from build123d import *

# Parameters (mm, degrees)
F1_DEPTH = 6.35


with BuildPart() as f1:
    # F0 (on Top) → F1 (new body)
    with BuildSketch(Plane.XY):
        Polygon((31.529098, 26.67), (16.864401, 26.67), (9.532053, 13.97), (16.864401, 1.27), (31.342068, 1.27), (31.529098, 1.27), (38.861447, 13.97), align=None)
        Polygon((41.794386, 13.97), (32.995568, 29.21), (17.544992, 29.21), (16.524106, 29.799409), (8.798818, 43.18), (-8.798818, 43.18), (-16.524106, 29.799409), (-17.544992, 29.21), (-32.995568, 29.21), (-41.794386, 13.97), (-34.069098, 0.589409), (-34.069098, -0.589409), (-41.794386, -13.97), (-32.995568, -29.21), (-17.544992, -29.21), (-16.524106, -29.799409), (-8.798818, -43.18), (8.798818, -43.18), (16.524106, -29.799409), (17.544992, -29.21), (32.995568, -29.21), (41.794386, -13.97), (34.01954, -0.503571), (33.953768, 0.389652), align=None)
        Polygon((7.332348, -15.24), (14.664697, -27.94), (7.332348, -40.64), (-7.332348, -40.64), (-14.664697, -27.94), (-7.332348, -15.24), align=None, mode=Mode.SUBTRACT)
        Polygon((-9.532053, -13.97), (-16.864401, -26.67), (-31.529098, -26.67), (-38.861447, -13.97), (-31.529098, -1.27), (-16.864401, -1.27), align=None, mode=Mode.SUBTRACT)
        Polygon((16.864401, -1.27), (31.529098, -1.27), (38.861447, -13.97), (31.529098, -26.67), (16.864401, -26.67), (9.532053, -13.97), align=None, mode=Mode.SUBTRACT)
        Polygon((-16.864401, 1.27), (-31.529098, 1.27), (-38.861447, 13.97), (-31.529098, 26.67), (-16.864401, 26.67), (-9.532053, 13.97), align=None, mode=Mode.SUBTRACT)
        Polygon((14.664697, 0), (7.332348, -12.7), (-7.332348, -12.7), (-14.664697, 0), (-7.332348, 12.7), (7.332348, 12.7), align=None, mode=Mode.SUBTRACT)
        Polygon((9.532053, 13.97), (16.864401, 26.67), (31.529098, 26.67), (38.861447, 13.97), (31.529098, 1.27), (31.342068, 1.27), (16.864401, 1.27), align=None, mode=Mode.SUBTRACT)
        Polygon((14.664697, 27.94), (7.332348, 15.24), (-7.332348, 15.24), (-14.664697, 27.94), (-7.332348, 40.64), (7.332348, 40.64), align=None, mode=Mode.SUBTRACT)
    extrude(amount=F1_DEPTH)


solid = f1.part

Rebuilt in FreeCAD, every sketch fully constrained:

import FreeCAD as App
import Part
import Sketcher
Q = App.Units.Quantity

doc = App.newDocument("Part")
body = doc.addObject("PartDesign::Body", "Body")

# Sketch on XY plane
sketch1 = body.newObject("Sketcher::SketchObject", "Sketch")
sketch1.AttachmentSupport = (doc.getObject("XY_Plane"), [""])
sketch1.MapMode = "FlatFace"
sketch1.addGeometry(Part.LineSegment(App.Vector(41.8, 14, 0), App.Vector(33, 29.2, 0)), False)
sketch1.addGeometry(Part.LineSegment(App.Vector(33, 29.2, 0), App.Vector(17.5, 29.2, 0)), False)
sketch1.addGeometry(Part.LineSegment(App.Vector(17.5, 29.2, 0), App.Vector(16.5, 29.8, 0)), False)
sketch1.addGeometry(Part.LineSegment(App.Vector(16.5, 29.8, 0), App.Vector(8.8, 43.2, 0)), False)
sketch1.addGeometry(Part.LineSegment(App.Vector(8.8, 43.2, 0), App.Vector(-8.8, 43.2, 0)), False)
sketch1.addGeometry(Part.LineSegment(App.Vector(-8.8, 43.2, 0), App.Vector(-16.5, 29.8, 0)), False)
sketch1.addGeometry(Part.LineSegment(App.Vector(-16.5, 29.8, 0), App.Vector(-17.5, 29.2, 0)), False)
sketch1.addGeometry(Part.LineSegment(App.Vector(-17.5, 29.2, 0), App.Vector(-33, 29.2, 0)), False)
sketch1.addGeometry(Part.LineSegment(App.Vector(-33, 29.2, 0), App.Vector(-41.8, 14, 0)), False)
sketch1.addGeometry(Part.LineSegment(App.Vector(-41.8, 14, 0), App.Vector(-34.1, 0.6, 0)), False)
sketch1.addGeometry(Part.LineSegment(App.Vector(-34.1, 0.6, 0), App.Vector(-34.1, -0.6, 0)), False)
sketch1.addGeometry(Part.LineSegment(App.Vector(-34.1, -0.6, 0), App.Vector(-41.8, -14, 0)), False)
sketch1.addGeometry(Part.LineSegment(App.Vector(-41.8, -14, 0), App.Vector(-33, -29.2, 0)), False)
sketch1.addGeometry(Part.LineSegment(App.Vector(-33, -29.2, 0), App.Vector(-17.5, -29.2, 0)), False)
sketch1.addGeometry(Part.LineSegment(App.Vector(-17.5, -29.2, 0), App.Vector(-16.5, -29.8, 0)), False)
sketch1.addGeometry(Part.LineSegment(App.Vector(-16.5, -29.8, 0), App.Vector(-8.8, -43.2, 0)), False)
sketch1.addGeometry(Part.LineSegment(App.Vector(-8.8, -43.2, 0), App.Vector(8.8, -43.2, 0)), False)
sketch1.addGeometry(Part.LineSegment(App.Vector(8.8, -43.2, 0), App.Vector(16.5, -29.8, 0)), False)
sketch1.addGeometry(Part.LineSegment(App.Vector(16.5, -29.8, 0), App.Vector(17.5, -29.2, 0)), False)
sketch1.addGeometry(Part.LineSegment(App.Vector(17.5, -29.2, 0), App.Vector(33, -29.2, 0)), False)
sketch1.addGeometry(Part.LineSegment(App.Vector(33, -29.2, 0), App.Vector(41.8, -14, 0)), False)
sketch1.addGeometry(Part.LineSegment(App.Vector(41.8, -14, 0), App.Vector(34, -0.5, 0)), False)
sketch1.addGeometry(Part.LineSegment(App.Vector(34, -0.5, 0), App.Vector(34, 0.4, 0)), False)
sketch1.addGeometry(Part.LineSegment(App.Vector(34, 0.4, 0), App.Vector(41.8, 14, 0)), False)
sketch1.addGeometry(Part.LineSegment(App.Vector(-7.3, -15.2, 0), App.Vector(7.3, -15.2, 0)), False)
sketch1.addGeometry(Part.LineSegment(App.Vector(7.3, -15.2, 0), App.Vector(14.7, -27.9, 0)), False)
sketch1.addGeometry(Part.LineSegment(App.Vector(14.7, -27.9, 0), App.Vector(7.3, -40.6, 0)), False)
sketch1.addGeometry(Part.LineSegment(App.Vector(7.3, -40.6, 0), App.Vector(-7.3, -40.6, 0)), False)
sketch1.addGeometry(Part.LineSegment(App.Vector(-7.3, -40.6, 0), App.Vector(-14.7, -27.9, 0)), False)
sketch1.addGeometry(Part.LineSegment(App.Vector(-14.7, -27.9, 0), App.Vector(-7.3, -15.2, 0)), False)
sketch1.addGeometry(Part.LineSegment(App.Vector(-16.9, -1.3, 0), App.Vector(-9.5, -14, 0)), False)
sketch1.addGeometry(Part.LineSegment(App.Vector(-9.5, -14, 0), App.Vector(-16.9, -26.7, 0)), False)
sketch1.addGeometry(Part.LineSegment(App.Vector(-16.9, -26.7, 0), App.Vector(-31.5, -26.7, 0)), False)
sketch1.addGeometry(Part.LineSegment(App.Vector(-31.5, -26.7, 0), App.Vector(-38.9, -14, 0)), False)
sketch1.addGeometry(Part.LineSegment(App.Vector(-38.9, -14, 0), App.Vector(-31.5, -1.3, 0)), False)
sketch1.addGeometry(Part.LineSegment(App.Vector(-31.5, -1.3, 0), App.Vector(-16.9, -1.3, 0)), False)
sketch1.addGeometry(Part.LineSegment(App.Vector(7.3, 12.7, 0), App.Vector(14.7, 0, 0)), False)
sketch1.addGeometry(Part.LineSegment(App.Vector(14.7, 0, 0), App.Vector(7.3, -12.7, 0)), False)
sketch1.addGeometry(Part.LineSegment(App.Vector(7.3, -12.7, 0), App.Vector(-7.3, -12.7, 0)), False)
sketch1.addGeometry(Part.LineSegment(App.Vector(-7.3, -12.7, 0), App.Vector(-14.7, 0, 0)), False)
sketch1.addGeometry(Part.LineSegment(App.Vector(-14.7, 0, 0), App.Vector(-7.3, 12.7, 0)), False)
sketch1.addGeometry(Part.LineSegment(App.Vector(-7.3, 12.7, 0), App.Vector(7.3, 12.7, 0)), False)
sketch1.addGeometry(Part.LineSegment(App.Vector(9.5, -14, 0), App.Vector(16.9, -1.3, 0)), False)
sketch1.addGeometry(Part.LineSegment(App.Vector(16.9, -1.3, 0), App.Vector(31.5, -1.3, 0)), False)
sketch1.addGeometry(Part.LineSegment(App.Vector(31.5, -1.3, 0), App.Vector(38.9, -14, 0)), False)
sketch1.addGeometry(Part.LineSegment(App.Vector(38.9, -14, 0), App.Vector(31.5, -26.7, 0)), False)
sketch1.addGeometry(Part.LineSegment(App.Vector(31.5, -26.7, 0), App.Vector(16.9, -26.7, 0)), False)
sketch1.addGeometry(Part.LineSegment(App.Vector(16.9, -26.7, 0), App.Vector(9.5, -14, 0)), False)
sketch1.addGeometry(Part.LineSegment(App.Vector(-9.5, 14, 0), App.Vector(-16.9, 1.3, 0)), False)
sketch1.addGeometry(Part.LineSegment(App.Vector(-16.9, 1.3, 0), App.Vector(-31.5, 1.3, 0)), False)
sketch1.addGeometry(Part.LineSegment(App.Vector(-31.5, 1.3, 0), App.Vector(-38.9, 14, 0)), False)
sketch1.addGeometry(Part.LineSegment(App.Vector(-38.9, 14, 0), App.Vector(-31.5, 26.7, 0)), False)
sketch1.addGeometry(Part.LineSegment(App.Vector(-31.5, 26.7, 0), App.Vector(-16.9, 26.7, 0)), False)
sketch1.addGeometry(Part.LineSegment(App.Vector(-16.9, 26.7, 0), App.Vector(-9.5, 14, 0)), False)
sketch1.addGeometry(Part.LineSegment(App.Vector(7.3, 40.6, 0), App.Vector(14.7, 27.9, 0)), False)
sketch1.addGeometry(Part.LineSegment(App.Vector(14.7, 27.9, 0), App.Vector(7.3, 15.2, 0)), False)
sketch1.addGeometry(Part.LineSegment(App.Vector(7.3, 15.2, 0), App.Vector(-7.3, 15.2, 0)), False)
sketch1.addGeometry(Part.LineSegment(App.Vector(-7.3, 15.2, 0), App.Vector(-14.7, 27.9, 0)), False)
sketch1.addGeometry(Part.LineSegment(App.Vector(-14.7, 27.9, 0), App.Vector(-7.3, 40.6, 0)), False)
sketch1.addGeometry(Part.LineSegment(App.Vector(-7.3, 40.6, 0), App.Vector(7.3, 40.6, 0)), False)
sketch1.addGeometry(Part.LineSegment(App.Vector(16.9, 1.3, 0), App.Vector(9.5, 14, 0)), False)
sketch1.addGeometry(Part.LineSegment(App.Vector(9.5, 14, 0), App.Vector(16.9, 26.7, 0)), False)
sketch1.addGeometry(Part.LineSegment(App.Vector(16.9, 26.7, 0), App.Vector(31.5, 26.7, 0)), False)
sketch1.addGeometry(Part.LineSegment(App.Vector(31.5, 26.7, 0), App.Vector(38.9, 14, 0)), False)
sketch1.addGeometry(Part.LineSegment(App.Vector(38.9, 14, 0), App.Vector(31.5, 1.3, 0)), False)
sketch1.addGeometry(Part.LineSegment(App.Vector(31.5, 1.3, 0), App.Vector(16.9, 1.3, 0)), False)
sketch1.addConstraint(Sketcher.Constraint("Coincident", 0, 2, 1, 1))
sketch1.addConstraint(Sketcher.Constraint("Coincident", 1, 2, 2, 1))
sketch1.addConstraint(Sketcher.Constraint("Coincident", 2, 2, 3, 1))
sketch1.addConstraint(Sketcher.Constraint("Coincident", 3, 2, 4, 1))
sketch1.addConstraint(Sketcher.Constraint("Coincident", 4, 2, 5, 1))
sketch1.addConstraint(Sketcher.Constraint("Coincident", 5, 2, 6, 1))
sketch1.addConstraint(Sketcher.Constraint("Coincident", 6, 2, 7, 1))
sketch1.addConstraint(Sketcher.Constraint("Coincident", 7, 2, 8, 1))
sketch1.addConstraint(Sketcher.Constraint("Coincident", 8, 2, 9, 1))
sketch1.addConstraint(Sketcher.Constraint("Coincident", 9, 2, 10, 1))
sketch1.addConstraint(Sketcher.Constraint("Coincident", 10, 2, 11, 1))
sketch1.addConstraint(Sketcher.Constraint("Coincident", 11, 2, 12, 1))
sketch1.addConstraint(Sketcher.Constraint("Coincident", 12, 2, 13, 1))
sketch1.addConstraint(Sketcher.Constraint("Coincident", 13, 2, 14, 1))
sketch1.addConstraint(Sketcher.Constraint("Coincident", 14, 2, 15, 1))
sketch1.addConstraint(Sketcher.Constraint("Coincident", 15, 2, 16, 1))
sketch1.addConstraint(Sketcher.Constraint("Coincident", 16, 2, 17, 1))
sketch1.addConstraint(Sketcher.Constraint("Coincident", 17, 2, 18, 1))
sketch1.addConstraint(Sketcher.Constraint("Coincident", 18, 2, 19, 1))
sketch1.addConstraint(Sketcher.Constraint("Coincident", 19, 2, 20, 1))
sketch1.addConstraint(Sketcher.Constraint("Coincident", 20, 2, 21, 1))
sketch1.addConstraint(Sketcher.Constraint("Coincident", 21, 2, 22, 1))
sketch1.addConstraint(Sketcher.Constraint("Coincident", 22, 2, 23, 1))
sketch1.addConstraint(Sketcher.Constraint("Coincident", 23, 2, 0, 1))
sketch1.addConstraint(Sketcher.Constraint("Coincident", 24, 2, 25, 1))
sketch1.addConstraint(Sketcher.Constraint("Coincident", 25, 2, 26, 1))
sketch1.addConstraint(Sketcher.Constraint("Coincident", 26, 2, 27, 1))
sketch1.addConstraint(Sketcher.Constraint("Coincident", 27, 2, 28, 1))
sketch1.addConstraint(Sketcher.Constraint("Coincident", 28, 2, 29, 1))
sketch1.addConstraint(Sketcher.Constraint("Coincident", 29, 2, 24, 1))
sketch1.addConstraint(Sketcher.Constraint("Coincident", 30, 2, 31, 1))
sketch1.addConstraint(Sketcher.Constraint("Coincident", 31, 2, 32, 1))
sketch1.addConstraint(Sketcher.Constraint("Coincident", 32, 2, 33, 1))
sketch1.addConstraint(Sketcher.Constraint("Coincident", 33, 2, 34, 1))
sketch1.addConstraint(Sketcher.Constraint("Coincident", 34, 2, 35, 1))
sketch1.addConstraint(Sketcher.Constraint("Coincident", 35, 2, 30, 1))
sketch1.addConstraint(Sketcher.Constraint("Coincident", 36, 2, 37, 1))
sketch1.addConstraint(Sketcher.Constraint("Coincident", 37, 2, 38, 1))
sketch1.addConstraint(Sketcher.Constraint("Coincident", 38, 2, 39, 1))
sketch1.addConstraint(Sketcher.Constraint("Coincident", 39, 2, 40, 1))
sketch1.addConstraint(Sketcher.Constraint("Coincident", 40, 2, 41, 1))
sketch1.addConstraint(Sketcher.Constraint("Coincident", 41, 2, 36, 1))
sketch1.addConstraint(Sketcher.Constraint("Coincident", 42, 2, 43, 1))
sketch1.addConstraint(Sketcher.Constraint("Coincident", 43, 2, 44, 1))
sketch1.addConstraint(Sketcher.Constraint("Coincident", 44, 2, 45, 1))
sketch1.addConstraint(Sketcher.Constraint("Coincident", 45, 2, 46, 1))
sketch1.addConstraint(Sketcher.Constraint("Coincident", 46, 2, 47, 1))
sketch1.addConstraint(Sketcher.Constraint("Coincident", 47, 2, 42, 1))
sketch1.addConstraint(Sketcher.Constraint("Coincident", 48, 2, 49, 1))
sketch1.addConstraint(Sketcher.Constraint("Coincident", 49, 2, 50, 1))
sketch1.addConstraint(Sketcher.Constraint("Coincident", 50, 2, 51, 1))
sketch1.addConstraint(Sketcher.Constraint("Coincident", 51, 2, 52, 1))
sketch1.addConstraint(Sketcher.Constraint("Coincident", 52, 2, 53, 1))
sketch1.addConstraint(Sketcher.Constraint("Coincident", 53, 2, 48, 1))
sketch1.addConstraint(Sketcher.Constraint("Coincident", 54, 2, 55, 1))
sketch1.addConstraint(Sketcher.Constraint("Coincident", 55, 2, 56, 1))
sketch1.addConstraint(Sketcher.Constraint("Coincident", 56, 2, 57, 1))
sketch1.addConstraint(Sketcher.Constraint("Coincident", 57, 2, 58, 1))
sketch1.addConstraint(Sketcher.Constraint("Coincident", 58, 2, 59, 1))
sketch1.addConstraint(Sketcher.Constraint("Coincident", 59, 2, 54, 1))
sketch1.addConstraint(Sketcher.Constraint("Coincident", 60, 2, 61, 1))
sketch1.addConstraint(Sketcher.Constraint("Coincident", 61, 2, 62, 1))
sketch1.addConstraint(Sketcher.Constraint("Coincident", 62, 2, 63, 1))
sketch1.addConstraint(Sketcher.Constraint("Coincident", 63, 2, 64, 1))
sketch1.addConstraint(Sketcher.Constraint("Coincident", 64, 2, 65, 1))
sketch1.addConstraint(Sketcher.Constraint("Coincident", 65, 2, 60, 1))
sketch1.addConstraint(Sketcher.Constraint("Horizontal", 1))
sketch1.addConstraint(Sketcher.Constraint("Horizontal", 4))
sketch1.addConstraint(Sketcher.Constraint("Horizontal", 7))
sketch1.addConstraint(Sketcher.Constraint("Vertical", 10))
sketch1.addConstraint(Sketcher.Constraint("Horizontal", 13))
sketch1.addConstraint(Sketcher.Constraint("Horizontal", 16))
sketch1.addConstraint(Sketcher.Constraint("Horizontal", 19))
sketch1.addConstraint(Sketcher.Constraint("Horizontal", 24))
sketch1.addConstraint(Sketcher.Constraint("Horizontal", 27))
sketch1.addConstraint(Sketcher.Constraint("Horizontal", 32))
sketch1.addConstraint(Sketcher.Constraint("Horizontal", 35))
sketch1.addConstraint(Sketcher.Constraint("Horizontal", 38))
sketch1.addConstraint(Sketcher.Constraint("Horizontal", 41))
sketch1.addConstraint(Sketcher.Constraint("Horizontal", 43))
sketch1.addConstraint(Sketcher.Constraint("Horizontal", 46))
sketch1.addConstraint(Sketcher.Constraint("Horizontal", 49))
sketch1.addConstraint(Sketcher.Constraint("Horizontal", 52))
sketch1.addConstraint(Sketcher.Constraint("Horizontal", 56))
sketch1.addConstraint(Sketcher.Constraint("Horizontal", 59))
sketch1.addConstraint(Sketcher.Constraint("Horizontal", 62))
sketch1.addConstraint(Sketcher.Constraint("Horizontal", 65))
sketch1.addConstraint(Sketcher.Constraint("Symmetric", 0, 2, 12, 2, -1, 1))
sketch1.addConstraint(Sketcher.Constraint("Symmetric", 2, 2, 14, 2, -1, 1))
sketch1.addConstraint(Sketcher.Constraint("Symmetric", 3, 2, 15, 2, -1, 1))
sketch1.addConstraint(Sketcher.Constraint("Symmetric", 5, 2, 17, 2, -1, 1))
sketch1.addConstraint(Sketcher.Constraint("Symmetric", 6, 2, 18, 2, -1, 1))
sketch1.addConstraint(Sketcher.Constraint("Symmetric", 8, 2, 20, 2, -1, 1))
sketch1.addConstraint(Sketcher.Constraint("Symmetric", 11, 2, 23, 2, -1, 1))
sketch1.addConstraint(Sketcher.Constraint("Symmetric", 36, 2, 39, 2, -1, 1))
sketch1.addConstraint(Sketcher.Constraint("Symmetric", 37, 2, 40, 2, -1, 1))
sketch1.addConstraint(Sketcher.Constraint("Symmetric", 42, 2, 48, 2, -1, 1))
sketch1.addConstraint(Sketcher.Constraint("Symmetric", 44, 2, 50, 2, -1, 1))
sketch1.addConstraint(Sketcher.Constraint("Symmetric", 45, 2, 51, 2, -1, 1))
sketch1.addConstraint(Sketcher.Constraint("Symmetric", 47, 2, 53, 2, -1, 1))
sketch1.addConstraint(Sketcher.Constraint("Symmetric", 28, 2, 54, 2, -1, 1))
sketch1.addConstraint(Sketcher.Constraint("Symmetric", 29, 2, 55, 2, -1, 1))
sketch1.addConstraint(Sketcher.Constraint("Symmetric", 25, 2, 57, 2, -1, 1))
sketch1.addConstraint(Sketcher.Constraint("Symmetric", 26, 2, 58, 2, -1, 1))
sketch1.addConstraint(Sketcher.Constraint("Symmetric", 30, 2, 60, 2, -1, 1))
sketch1.addConstraint(Sketcher.Constraint("Symmetric", 31, 2, 61, 2, -1, 1))
sketch1.addConstraint(Sketcher.Constraint("Symmetric", 33, 2, 63, 2, -1, 1))
sketch1.addConstraint(Sketcher.Constraint("Symmetric", 34, 2, 64, 2, -1, 1))
sketch1.addConstraint(Sketcher.Constraint("Symmetric", 2, 2, 5, 2, -2))
sketch1.addConstraint(Sketcher.Constraint("Symmetric", 1, 2, 6, 2, -2))
sketch1.addConstraint(Sketcher.Constraint("Symmetric", 11, 2, 20, 2, -2))
sketch1.addConstraint(Sketcher.Constraint("Symmetric", 25, 2, 28, 2, -2))
sketch1.addConstraint(Sketcher.Constraint("Symmetric", 35, 2, 42, 2, -2))
sketch1.addConstraint(Sketcher.Constraint("Symmetric", 33, 2, 44, 2, -2))
sketch1.addConstraint(Sketcher.Constraint("Symmetric", 32, 2, 45, 2, -2))
sketch1.addConstraint(Sketcher.Constraint("Symmetric", 30, 2, 47, 2, -2))
sketch1.addConstraint(Sketcher.Constraint("PointOnObject", 36, 2, -1))
sketch1.addConstraint(Sketcher.Constraint("Parallel", 0, 3))
sketch1.addConstraint(Sketcher.Constraint("Perpendicular", 2, 5))
sketch1.addConstraint(Sketcher.Constraint("Perpendicular", 3, 6))
sketch1.addConstraint(Sketcher.Constraint("Parallel", 5, 8))
sketch1.addConstraint(Sketcher.Constraint("Perpendicular", 6, 9))
sketch1.addConstraint(Sketcher.Constraint("Parallel", 8, 11))
sketch1.addConstraint(Sketcher.Constraint("Perpendicular", 11, 14))
sketch1.addConstraint(Sketcher.Constraint("Perpendicular", 14, 17))
sketch1.addConstraint(Sketcher.Constraint("Parallel", 17, 20))
sketch1.addConstraint(Sketcher.Constraint("Perpendicular", 18, 21))
sketch1.addConstraint(Sketcher.Constraint("Parallel", 20, 23))
sketch1.addConstraint(Sketcher.Constraint("Parallel", 21, 25))
sketch1.addConstraint(Sketcher.Constraint("Parallel", 23, 26))
sketch1.addConstraint(Sketcher.Constraint("Parallel", 25, 28))
sketch1.addConstraint(Sketcher.Constraint("Parallel", 26, 29))
sketch1.addConstraint(Sketcher.Constraint("Parallel", 28, 30))
sketch1.addConstraint(Sketcher.Constraint("Parallel", 29, 31))
sketch1.addConstraint(Sketcher.Constraint("Parallel", 30, 33))
sketch1.addConstraint(Sketcher.Constraint("Parallel", 31, 34))
sketch1.addConstraint(Sketcher.Constraint("Parallel", 33, 36))
sketch1.addConstraint(Sketcher.Constraint("Parallel", 34, 37))
sketch1.addConstraint(Sketcher.Constraint("Parallel", 36, 39))
sketch1.addConstraint(Sketcher.Constraint("Parallel", 39, 44))
sketch1.addConstraint(Sketcher.Constraint("Parallel", 44, 47))
sketch1.addConstraint(Sketcher.Constraint("Parallel", 47, 50))
sketch1.addConstraint(Sketcher.Constraint("Parallel", 50, 53))
sketch1.addConstraint(Sketcher.Constraint("Parallel", 53, 54))
sketch1.addConstraint(Sketcher.Constraint("Parallel", 54, 57))
sketch1.addConstraint(Sketcher.Constraint("Parallel", 57, 60))
sketch1.addConstraint(Sketcher.Constraint("Parallel", 60, 63))
sketch1.addConstraint(Sketcher.Constraint("Horizontal", 20, 2, 30, 2))
sketch1.addConstraint(Sketcher.Constraint("Horizontal", 30, 2, 33, 2))
sketch1.addConstraint(Sketcher.Constraint("Vertical", 24, 2, 26, 2))
sketch1.addConstraint(Sketcher.Constraint("Vertical", 32, 2, 34, 2))
sketch1.addConstraint(Sketcher.Constraint("Vertical", 25, 2, 36, 2))
sketch1.addConstraint(Sketcher.Constraint("Vertical", 26, 2, 37, 2))
sketch1.addConstraint(Sketcher.Constraint("Equal", 27, 32))
sketch1.addConstraint(Sketcher.Constraint("Equal", 5, 9))
sketch1.addConstraint(Sketcher.Constraint("Equal", 29, 30))
sketch1.addConstraint(Sketcher.Constraint("Angle", 0, Q("120 deg")))
sketch1.addConstraint(Sketcher.Constraint("DistanceY", -1, 1, 3, 2, Q("1.7 in")))
sketch1.addConstraint(Sketcher.Constraint("DistanceY", 24, 2, -1, 1, Q("0.6 in")))
sketch1.addConstraint(Sketcher.Constraint("DistanceY", 25, 2, -1, 1, Q("1.1 in")))
sketch1.addConstraint(Sketcher.Constraint("DistanceY", -1, 1, 0, 2, Q("1.15 in")))
sketch1.addConstraint(Sketcher.Constraint("DistanceY", -1, 1, 8, 2, Q("0.55 in")))
sketch1.addConstraint(Sketcher.Constraint("DistanceX", 31, 2, -1, 1, Q("16.864401 mm")))
sketch1.addConstraint(Sketcher.Constraint("DistanceX", 32, 2, -1, 1, Q("31.529098 mm")))
sketch1.addConstraint(Sketcher.Constraint("Distance", 22, Q("0.895641 mm")))
sketch1.addConstraint(Sketcher.Constraint("DistanceX", 1, 2, 1, 1, Q("15.450576 mm")))
sketch1.addConstraint(Sketcher.Constraint("DistanceX", 4, 2, 4, 1, Q("17.597636 mm")))
sketch1.addConstraint(Sketcher.Constraint("DistanceY", 10, 2, 10, 1, Q("1.178818 mm")))
sketch1.addConstraint(Sketcher.Constraint("DistanceX", -1, 1, 21, 2, Q("34.01954 mm")))
pad1 = body.newObject("PartDesign::Pad", "Pad")
pad1.Profile = sketch1
pad1.Length = Q("0.25 in")

doc.recompute()
